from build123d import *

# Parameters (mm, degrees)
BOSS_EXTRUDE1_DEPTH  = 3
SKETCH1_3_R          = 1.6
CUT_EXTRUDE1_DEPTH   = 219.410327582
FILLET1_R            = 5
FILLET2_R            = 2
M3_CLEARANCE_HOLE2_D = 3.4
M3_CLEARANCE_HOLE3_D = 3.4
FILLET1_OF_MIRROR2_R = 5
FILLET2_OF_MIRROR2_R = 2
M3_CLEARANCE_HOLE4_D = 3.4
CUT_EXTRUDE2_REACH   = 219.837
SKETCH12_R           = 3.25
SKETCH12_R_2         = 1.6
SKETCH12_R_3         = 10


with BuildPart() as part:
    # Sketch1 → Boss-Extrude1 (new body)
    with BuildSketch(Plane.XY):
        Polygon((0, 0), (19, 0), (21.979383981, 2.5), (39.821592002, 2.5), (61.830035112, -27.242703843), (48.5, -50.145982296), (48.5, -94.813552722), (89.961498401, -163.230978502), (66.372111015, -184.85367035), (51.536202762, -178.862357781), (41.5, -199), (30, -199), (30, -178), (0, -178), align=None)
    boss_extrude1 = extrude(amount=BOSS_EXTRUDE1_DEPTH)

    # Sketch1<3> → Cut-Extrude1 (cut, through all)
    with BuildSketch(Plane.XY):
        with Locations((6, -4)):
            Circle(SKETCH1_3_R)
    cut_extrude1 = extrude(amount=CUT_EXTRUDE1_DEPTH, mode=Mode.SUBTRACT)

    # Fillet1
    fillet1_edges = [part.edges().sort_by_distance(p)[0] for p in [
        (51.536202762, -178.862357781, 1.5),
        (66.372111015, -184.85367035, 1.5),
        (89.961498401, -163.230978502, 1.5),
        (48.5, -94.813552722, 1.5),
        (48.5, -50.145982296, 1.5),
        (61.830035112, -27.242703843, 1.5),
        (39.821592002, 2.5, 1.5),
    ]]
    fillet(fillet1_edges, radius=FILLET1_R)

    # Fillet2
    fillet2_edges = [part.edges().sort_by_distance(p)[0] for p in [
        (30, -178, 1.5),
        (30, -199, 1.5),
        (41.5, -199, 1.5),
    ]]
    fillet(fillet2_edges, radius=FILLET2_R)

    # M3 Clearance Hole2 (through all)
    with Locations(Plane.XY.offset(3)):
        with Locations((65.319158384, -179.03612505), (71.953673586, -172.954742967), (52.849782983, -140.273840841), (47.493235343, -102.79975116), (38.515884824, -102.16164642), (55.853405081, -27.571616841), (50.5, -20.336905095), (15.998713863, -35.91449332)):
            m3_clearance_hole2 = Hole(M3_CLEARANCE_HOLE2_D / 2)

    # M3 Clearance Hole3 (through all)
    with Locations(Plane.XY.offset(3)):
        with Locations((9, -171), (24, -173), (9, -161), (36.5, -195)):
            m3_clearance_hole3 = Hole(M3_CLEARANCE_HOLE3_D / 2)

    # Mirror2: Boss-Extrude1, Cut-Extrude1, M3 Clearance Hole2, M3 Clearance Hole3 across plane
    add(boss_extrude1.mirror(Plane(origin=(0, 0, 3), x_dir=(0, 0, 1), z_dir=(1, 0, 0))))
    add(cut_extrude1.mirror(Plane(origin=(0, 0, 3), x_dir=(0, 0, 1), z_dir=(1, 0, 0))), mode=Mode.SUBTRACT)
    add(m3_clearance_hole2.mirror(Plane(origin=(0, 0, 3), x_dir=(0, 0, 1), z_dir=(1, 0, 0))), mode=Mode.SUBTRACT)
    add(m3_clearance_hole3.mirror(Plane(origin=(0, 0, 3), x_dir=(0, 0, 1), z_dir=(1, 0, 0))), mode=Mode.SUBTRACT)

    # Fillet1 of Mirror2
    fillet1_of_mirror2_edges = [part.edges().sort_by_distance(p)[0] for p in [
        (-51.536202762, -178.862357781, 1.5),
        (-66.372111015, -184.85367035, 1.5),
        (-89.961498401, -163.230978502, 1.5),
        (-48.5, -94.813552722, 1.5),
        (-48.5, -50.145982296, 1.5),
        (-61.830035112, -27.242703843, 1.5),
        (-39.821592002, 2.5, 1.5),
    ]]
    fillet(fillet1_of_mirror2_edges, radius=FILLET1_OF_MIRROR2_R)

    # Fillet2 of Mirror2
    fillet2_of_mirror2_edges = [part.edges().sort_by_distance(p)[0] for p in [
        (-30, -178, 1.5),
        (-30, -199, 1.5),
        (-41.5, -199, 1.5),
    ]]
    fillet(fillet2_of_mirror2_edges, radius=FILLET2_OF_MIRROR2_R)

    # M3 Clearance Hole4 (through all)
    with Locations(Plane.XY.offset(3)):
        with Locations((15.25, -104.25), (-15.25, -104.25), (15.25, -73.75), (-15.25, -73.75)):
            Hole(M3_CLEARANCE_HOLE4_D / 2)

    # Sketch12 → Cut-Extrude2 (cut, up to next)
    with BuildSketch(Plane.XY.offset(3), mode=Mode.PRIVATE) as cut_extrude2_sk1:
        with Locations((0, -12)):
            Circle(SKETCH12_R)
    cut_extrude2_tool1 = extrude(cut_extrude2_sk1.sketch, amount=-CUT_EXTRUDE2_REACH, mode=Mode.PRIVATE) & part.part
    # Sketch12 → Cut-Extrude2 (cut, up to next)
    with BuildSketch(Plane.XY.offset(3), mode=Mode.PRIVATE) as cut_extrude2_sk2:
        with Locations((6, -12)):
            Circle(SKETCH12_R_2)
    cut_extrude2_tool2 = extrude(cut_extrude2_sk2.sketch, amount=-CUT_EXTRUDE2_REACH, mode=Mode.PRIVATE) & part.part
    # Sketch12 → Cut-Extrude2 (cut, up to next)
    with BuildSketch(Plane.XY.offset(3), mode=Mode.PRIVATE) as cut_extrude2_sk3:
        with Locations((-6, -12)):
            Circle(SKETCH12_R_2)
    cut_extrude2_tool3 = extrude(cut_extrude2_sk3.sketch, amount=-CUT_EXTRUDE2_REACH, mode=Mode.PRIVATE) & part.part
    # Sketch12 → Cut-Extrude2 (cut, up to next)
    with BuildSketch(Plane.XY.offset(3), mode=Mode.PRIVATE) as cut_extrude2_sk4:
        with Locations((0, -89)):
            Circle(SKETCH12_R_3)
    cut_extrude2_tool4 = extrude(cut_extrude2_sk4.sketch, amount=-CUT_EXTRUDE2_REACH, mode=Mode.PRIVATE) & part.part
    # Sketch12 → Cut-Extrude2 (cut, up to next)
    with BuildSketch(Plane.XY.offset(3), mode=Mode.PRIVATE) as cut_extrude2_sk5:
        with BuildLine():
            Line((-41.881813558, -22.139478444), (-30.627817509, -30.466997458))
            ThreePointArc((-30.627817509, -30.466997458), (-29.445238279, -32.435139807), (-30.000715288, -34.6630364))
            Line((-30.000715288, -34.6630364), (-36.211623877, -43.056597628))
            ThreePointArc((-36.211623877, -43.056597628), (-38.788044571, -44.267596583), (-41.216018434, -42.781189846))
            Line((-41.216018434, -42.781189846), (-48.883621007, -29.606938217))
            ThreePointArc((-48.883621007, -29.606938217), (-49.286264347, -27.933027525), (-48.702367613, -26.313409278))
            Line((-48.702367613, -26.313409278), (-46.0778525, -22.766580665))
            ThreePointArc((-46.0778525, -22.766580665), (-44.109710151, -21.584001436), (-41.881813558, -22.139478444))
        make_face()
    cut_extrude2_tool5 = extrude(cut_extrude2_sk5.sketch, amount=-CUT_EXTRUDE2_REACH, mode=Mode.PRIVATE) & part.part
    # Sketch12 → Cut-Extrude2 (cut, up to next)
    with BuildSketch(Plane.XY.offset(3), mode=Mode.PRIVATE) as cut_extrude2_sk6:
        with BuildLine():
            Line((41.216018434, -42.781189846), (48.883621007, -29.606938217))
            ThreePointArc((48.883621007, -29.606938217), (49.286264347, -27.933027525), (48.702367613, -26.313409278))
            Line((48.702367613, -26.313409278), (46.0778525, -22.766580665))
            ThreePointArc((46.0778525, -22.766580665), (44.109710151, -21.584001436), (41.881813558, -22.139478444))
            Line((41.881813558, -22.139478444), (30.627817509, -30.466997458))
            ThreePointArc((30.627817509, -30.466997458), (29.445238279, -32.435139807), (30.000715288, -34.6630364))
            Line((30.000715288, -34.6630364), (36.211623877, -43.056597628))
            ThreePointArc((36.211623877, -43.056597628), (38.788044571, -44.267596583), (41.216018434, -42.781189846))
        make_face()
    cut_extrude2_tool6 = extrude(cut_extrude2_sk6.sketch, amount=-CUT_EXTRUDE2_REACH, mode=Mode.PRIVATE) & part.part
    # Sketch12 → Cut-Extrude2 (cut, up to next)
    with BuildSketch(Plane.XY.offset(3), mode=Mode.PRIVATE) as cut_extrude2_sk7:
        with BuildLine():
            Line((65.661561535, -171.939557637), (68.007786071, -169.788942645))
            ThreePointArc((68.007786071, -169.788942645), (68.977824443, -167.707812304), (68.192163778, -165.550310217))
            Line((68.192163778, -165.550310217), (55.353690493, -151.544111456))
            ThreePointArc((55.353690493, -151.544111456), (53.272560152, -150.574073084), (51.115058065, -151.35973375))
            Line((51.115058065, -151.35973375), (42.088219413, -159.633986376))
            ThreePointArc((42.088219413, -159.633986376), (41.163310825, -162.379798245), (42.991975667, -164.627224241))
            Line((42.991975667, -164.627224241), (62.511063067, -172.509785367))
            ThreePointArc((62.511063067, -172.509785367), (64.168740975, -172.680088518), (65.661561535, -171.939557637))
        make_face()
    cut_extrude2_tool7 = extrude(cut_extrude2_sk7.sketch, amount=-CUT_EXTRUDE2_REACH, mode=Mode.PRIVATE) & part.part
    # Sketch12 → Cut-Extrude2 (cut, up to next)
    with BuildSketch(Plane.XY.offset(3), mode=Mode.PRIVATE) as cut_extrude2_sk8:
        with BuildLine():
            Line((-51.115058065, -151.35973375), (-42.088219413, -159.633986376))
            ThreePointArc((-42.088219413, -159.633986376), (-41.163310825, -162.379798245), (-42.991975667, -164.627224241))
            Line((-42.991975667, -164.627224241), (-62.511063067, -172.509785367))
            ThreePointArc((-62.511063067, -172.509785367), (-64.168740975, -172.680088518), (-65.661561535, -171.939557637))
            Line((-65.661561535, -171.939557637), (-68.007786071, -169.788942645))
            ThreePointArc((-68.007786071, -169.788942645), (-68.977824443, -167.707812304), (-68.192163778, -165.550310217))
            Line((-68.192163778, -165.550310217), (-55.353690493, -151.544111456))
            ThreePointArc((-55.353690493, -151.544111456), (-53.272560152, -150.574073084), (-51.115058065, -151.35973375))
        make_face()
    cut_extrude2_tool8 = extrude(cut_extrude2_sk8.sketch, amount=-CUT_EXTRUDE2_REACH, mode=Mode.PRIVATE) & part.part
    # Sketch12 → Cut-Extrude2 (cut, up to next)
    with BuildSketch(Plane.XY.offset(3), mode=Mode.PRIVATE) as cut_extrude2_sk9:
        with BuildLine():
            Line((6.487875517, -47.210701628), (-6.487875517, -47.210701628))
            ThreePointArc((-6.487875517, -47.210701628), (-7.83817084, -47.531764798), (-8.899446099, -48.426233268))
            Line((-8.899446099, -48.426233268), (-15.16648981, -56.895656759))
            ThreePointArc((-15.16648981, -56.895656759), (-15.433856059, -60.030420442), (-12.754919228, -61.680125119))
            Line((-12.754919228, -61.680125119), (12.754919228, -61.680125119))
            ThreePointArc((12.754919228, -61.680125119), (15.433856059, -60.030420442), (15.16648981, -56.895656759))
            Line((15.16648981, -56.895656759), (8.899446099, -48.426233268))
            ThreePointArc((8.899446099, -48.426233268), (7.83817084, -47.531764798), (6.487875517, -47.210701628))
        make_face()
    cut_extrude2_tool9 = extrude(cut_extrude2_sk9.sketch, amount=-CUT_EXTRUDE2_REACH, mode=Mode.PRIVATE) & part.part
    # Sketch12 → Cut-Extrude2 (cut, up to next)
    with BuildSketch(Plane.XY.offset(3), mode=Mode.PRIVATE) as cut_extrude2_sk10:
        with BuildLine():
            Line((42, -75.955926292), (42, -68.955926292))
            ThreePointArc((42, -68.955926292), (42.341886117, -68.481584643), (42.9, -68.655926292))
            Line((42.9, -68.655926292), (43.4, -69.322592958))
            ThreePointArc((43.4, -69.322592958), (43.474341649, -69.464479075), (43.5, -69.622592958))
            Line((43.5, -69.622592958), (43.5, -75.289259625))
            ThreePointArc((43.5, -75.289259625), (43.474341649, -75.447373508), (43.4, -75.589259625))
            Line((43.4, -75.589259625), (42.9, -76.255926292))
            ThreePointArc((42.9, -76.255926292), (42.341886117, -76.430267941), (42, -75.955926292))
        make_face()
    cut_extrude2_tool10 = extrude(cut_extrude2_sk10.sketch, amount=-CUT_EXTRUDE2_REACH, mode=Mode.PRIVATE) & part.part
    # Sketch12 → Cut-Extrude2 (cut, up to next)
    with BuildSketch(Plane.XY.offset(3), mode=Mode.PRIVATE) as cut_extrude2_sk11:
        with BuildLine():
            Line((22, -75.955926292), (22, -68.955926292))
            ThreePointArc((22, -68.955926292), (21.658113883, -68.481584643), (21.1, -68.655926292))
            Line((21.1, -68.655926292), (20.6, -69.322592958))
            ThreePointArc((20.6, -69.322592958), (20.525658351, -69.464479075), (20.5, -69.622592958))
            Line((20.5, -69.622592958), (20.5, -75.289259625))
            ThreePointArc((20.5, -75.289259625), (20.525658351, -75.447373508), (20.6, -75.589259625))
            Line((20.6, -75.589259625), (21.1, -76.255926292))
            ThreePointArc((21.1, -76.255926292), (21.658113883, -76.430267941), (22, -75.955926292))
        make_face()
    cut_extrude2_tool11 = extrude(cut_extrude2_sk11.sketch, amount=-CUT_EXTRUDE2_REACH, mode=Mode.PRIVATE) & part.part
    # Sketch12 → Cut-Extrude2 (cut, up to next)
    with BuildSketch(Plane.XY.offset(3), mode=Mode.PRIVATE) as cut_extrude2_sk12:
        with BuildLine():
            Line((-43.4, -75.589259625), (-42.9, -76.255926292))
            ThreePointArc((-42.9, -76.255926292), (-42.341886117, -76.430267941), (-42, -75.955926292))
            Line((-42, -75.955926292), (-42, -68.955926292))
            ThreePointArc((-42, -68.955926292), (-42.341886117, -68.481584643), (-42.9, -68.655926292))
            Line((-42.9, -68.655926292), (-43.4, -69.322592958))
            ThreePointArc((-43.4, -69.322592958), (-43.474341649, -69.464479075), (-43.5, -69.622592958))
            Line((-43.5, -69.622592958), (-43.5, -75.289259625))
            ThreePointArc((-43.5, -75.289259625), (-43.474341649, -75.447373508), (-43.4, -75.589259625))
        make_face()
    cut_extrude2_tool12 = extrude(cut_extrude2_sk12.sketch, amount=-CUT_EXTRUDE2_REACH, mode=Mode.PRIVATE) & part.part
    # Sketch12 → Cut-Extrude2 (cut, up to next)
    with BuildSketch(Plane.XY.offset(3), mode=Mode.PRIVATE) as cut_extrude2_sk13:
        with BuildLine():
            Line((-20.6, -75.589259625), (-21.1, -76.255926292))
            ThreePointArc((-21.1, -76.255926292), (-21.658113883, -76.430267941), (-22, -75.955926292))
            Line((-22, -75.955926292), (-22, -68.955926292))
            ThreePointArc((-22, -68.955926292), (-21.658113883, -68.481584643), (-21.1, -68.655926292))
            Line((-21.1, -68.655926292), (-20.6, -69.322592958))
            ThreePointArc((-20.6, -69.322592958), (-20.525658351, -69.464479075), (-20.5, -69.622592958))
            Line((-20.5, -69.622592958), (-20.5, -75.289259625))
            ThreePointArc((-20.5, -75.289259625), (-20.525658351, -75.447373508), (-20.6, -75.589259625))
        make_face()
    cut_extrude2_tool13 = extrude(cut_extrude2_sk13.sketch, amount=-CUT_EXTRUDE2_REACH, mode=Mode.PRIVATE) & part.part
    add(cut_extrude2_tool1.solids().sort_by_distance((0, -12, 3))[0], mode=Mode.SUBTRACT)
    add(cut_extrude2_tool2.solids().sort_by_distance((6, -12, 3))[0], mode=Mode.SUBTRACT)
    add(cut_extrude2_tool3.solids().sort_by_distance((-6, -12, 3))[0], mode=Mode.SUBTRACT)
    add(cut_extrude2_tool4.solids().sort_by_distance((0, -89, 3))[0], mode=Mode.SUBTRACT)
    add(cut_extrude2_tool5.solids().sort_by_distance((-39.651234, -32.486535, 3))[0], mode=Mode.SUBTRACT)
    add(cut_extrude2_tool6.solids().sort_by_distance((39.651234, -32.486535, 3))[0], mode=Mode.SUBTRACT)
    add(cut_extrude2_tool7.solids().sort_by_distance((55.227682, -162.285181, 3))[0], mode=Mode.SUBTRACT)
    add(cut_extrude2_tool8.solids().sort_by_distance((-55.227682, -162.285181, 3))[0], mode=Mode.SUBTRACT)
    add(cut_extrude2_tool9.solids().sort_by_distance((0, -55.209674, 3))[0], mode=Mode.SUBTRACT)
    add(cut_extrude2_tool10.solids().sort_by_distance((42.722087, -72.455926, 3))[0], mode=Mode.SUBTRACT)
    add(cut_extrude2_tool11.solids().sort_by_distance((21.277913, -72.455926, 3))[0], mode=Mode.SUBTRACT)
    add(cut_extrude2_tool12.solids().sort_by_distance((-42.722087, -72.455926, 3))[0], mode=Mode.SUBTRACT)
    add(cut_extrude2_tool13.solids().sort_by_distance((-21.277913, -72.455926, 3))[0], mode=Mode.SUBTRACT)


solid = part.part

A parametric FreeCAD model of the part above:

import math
import FreeCAD as App
import Part
import Sketcher
from FreeCAD import Vector
Q = App.Units.Quantity


def edges_at(feature, points):
    """Names of the edges that pass closest to the given points."""
    edges = feature.Shape.Edges
    near = lambda p: min(range(len(edges)), key=lambda i: edges[i].distToShape(Part.Vertex(*p))[0])
    return sorted({f"Edge{near(p) + 1}" for p in points})


def add_polygon(sketch, points):
    """Adds a closed chain of lines whose ends are joined by coincident constraints."""
    first, n = sketch.GeometryCount, len(points)
    for a, b in zip(points, points[1:] + points[:1]):
        sketch.addGeometry(Part.LineSegment(App.Vector(*a, 0), App.Vector(*b, 0)), False)
    for i in range(n):
        sketch.addConstraint(Sketcher.Constraint("Coincident", first + i, 2, first + (i + 1) % n, 1))

doc = App.newDocument("Part")
body = doc.addObject("PartDesign::Body", "Body")

sketch1 = doc.addObject("Sketcher::SketchObject", "Sketch")
body.addObject(sketch1)
sketch1.AttachmentSupport = (doc.XY_Plane, [""])
sketch1.MapMode = "FlatFace"
add_polygon(sketch1, [(19, 0), (0, 0), (0, -178), (30, -178), (30, -199), (41.5, -199), (51.5, -178.9), (66.4, -184.9), (90, -163.2), (48.5, -94.8), (48.5, -50.1), (61.8, -27.2), (39.8, 2.5), (22, 2.5)])
sketch1.addConstraint(Sketcher.Constraint("Horizontal", 0))
sketch1.addConstraint(Sketcher.Constraint("Vertical", 1))
sketch1.addConstraint(Sketcher.Constraint("Horizontal", 2))
sketch1.addConstraint(Sketcher.Constraint("Vertical", 3))
sketch1.addConstraint(Sketcher.Constraint("Horizontal", 4))
sketch1.addConstraint(Sketcher.Constraint("Vertical", 9))
sketch1.addConstraint(Sketcher.Constraint("Horizontal", 12))
sketch1.addConstraint(Sketcher.Constraint("Coincident", 0, 2, -1, 1))
sketch1.addConstraint(Sketcher.Constraint("DistanceX", 0, 2, 0, 1, 19.0))
sketch1.addConstraint(Sketcher.Constraint("DistanceX", 2, 1, 2, 2, 30.0))
sketch1.addConstraint(Sketcher.Constraint("DistanceY", 1, 2, 1, 1, 178.0))
sketch1.addConstraint(Sketcher.Constraint("DistanceY", 3, 2, 3, 1, 21.0))
sketch1.addConstraint(Sketcher.Constraint("Angle", 13, Q("-140 deg")))
sketch1.addConstraint(Sketcher.Constraint("Distance", 6, 16.0))
sketch1.addConstraint(Sketcher.Constraint("Distance", 7, 32.0))
sketch1.addConstraint(Sketcher.Constraint("Distance", 8, 80.0))
sketch1.addConstraint(Sketcher.Constraint("Distance", 11, 37.0))
sketch1.addConstraint(Sketcher.Constraint("DistanceX", 4, 1, 4, 2, 11.5))
sketch1.addConstraint(Sketcher.Constraint("Angle", 10, Q("59.799984 deg")))
sketch1.addConstraint(Sketcher.Constraint("Angle", 11, Q("126.5 deg")))
sketch1.addConstraint(Sketcher.Constraint("Distance", 5, 22.5))
sketch1.addConstraint(Sketcher.Constraint("Distance", 10, 26.5))
sketch1.addConstraint(Sketcher.Constraint("DistanceX", -1, 1, 8, 2, 48.5))
sketch1.addConstraint(Sketcher.Constraint("DistanceY", -1, 1, 11, 2, 2.5))
sketch1.addConstraint(Sketcher.Constraint("DistanceY", 9, 1, 9, 2, 44.66757))
sketch1.addConstraint(Sketcher.Constraint("DistanceX", -1, 1, 7, 2, 89.961498))
sketch1.addConstraint(Sketcher.Constraint("DistanceX", -1, 1, 6, 2, 66.372111))
pad1 = doc.addObject("PartDesign::Pad", "Pad")
body.addObject(pad1)
pad1.Profile = sketch1
pad1.Length = 3

sketch2 = doc.addObject("Sketcher::SketchObject", "Sketch001")
body.addObject(sketch2)
sketch2.AttachmentSupport = (doc.XY_Plane, [""])
sketch2.MapMode = "FlatFace"
sketch2.addGeometry(Part.Circle(Vector(6, -4, 0), Vector(0, 0, 1), 1.6), False)
sketch2.addConstraint(Sketcher.Constraint("Diameter", 0, 3.2))
sketch2.addConstraint(Sketcher.Constraint("DistanceX", -1, 1, 0, 3, 6.0))
sketch2.addConstraint(Sketcher.Constraint("DistanceY", 0, 3, -1, 1, 4.0))
pocket1 = doc.addObject("PartDesign::Pocket", "Pocket")
body.addObject(pocket1)
pocket1.Profile = sketch2
pocket1.Type = "ThroughAll"
pocket1.Reversed = True
doc.recompute()

fillet = doc.addObject("PartDesign::Fillet", "Fillet")
body.addObject(fillet)
fillet.Base = (pocket1, edges_at(pocket1, [
    (51.536, -178.862, 1.5),
    (66.372, -184.854, 1.5),
    (89.961, -163.231, 1.5),
    (48.5, -94.814, 1.5),
    (48.5, -50.146, 1.5),
    (61.83, -27.243, 1.5),
    (39.822, 2.5, 1.5),
]))
fillet.Radius = 5
doc.recompute()

fillet2 = doc.addObject("PartDesign::Fillet", "Fillet001")
body.addObject(fillet2)
fillet2.Base = (fillet, edges_at(fillet, [(30, -178, 1.5), (30, -199, 1.5), (41.5, -199, 1.5)]))
fillet2.Radius = 2

sketch3 = doc.addObject("Sketcher::SketchObject", "Sketch002")
body.addObject(sketch3)
sketch3.AttachmentSupport = (doc.XY_Plane, [""])
sketch3.MapMode = "FlatFace"
sketch3.AttachmentOffset = App.Placement(Vector(0, 0, 3), App.Rotation())
sketch3.addGeometry(Part.Circle(Vector(65.3, -179, 0), Vector(0, 0, 1), 1.7), False)
sketch3.addGeometry(Part.Circle(Vector(72, -173, 0), Vector(0, 0, 1), 1.7), False)
sketch3.addGeometry(Part.Circle(Vector(52.8, -140.3, 0), Vector(0, 0, 1), 1.7), False)
sketch3.addGeometry(Part.Circle(Vector(47.5, -102.8, 0), Vector(0, 0, 1), 1.7), False)
sketch3.addGeometry(Part.Circle(Vector(38.5, -102.2, 0), Vector(0, 0, 1), 1.7), False)
sketch3.addGeometry(Part.Circle(Vector(55.9, -27.6, 0), Vector(0, 0, 1), 1.7), False)
sketch3.addGeometry(Part.Circle(Vector(50.5, -20.3, 0), Vector(0, 0, 1), 1.7), False)
sketch3.addGeometry(Part.Circle(Vector(16, -35.9, 0), Vector(0, 0, 1), 1.7), False)
sketch3.addConstraint(Sketcher.Constraint("Equal", 0, 1))
sketch3.addConstraint(Sketcher.Constraint("Equal", 1, 2))
sketch3.addConstraint(Sketcher.Constraint("Equal", 2, 3))
sketch3.addConstraint(Sketcher.Constraint("Equal", 3, 4))
sketch3.addConstraint(Sketcher.Constraint("Equal", 4, 5))
sketch3.addConstraint(Sketcher.Constraint("Equal", 5, 6))
sketch3.addConstraint(Sketcher.Constraint("Equal", 6, 7))
sketch3.addConstraint(Sketcher.Constraint("Diameter", 0, 3.4))
sketch3.addConstraint(Sketcher.Constraint("DistanceX", -1, 1, 6, 3, 50.5))
sketch3.addConstraint(Sketcher.Constraint("DistanceX", 4, 3, 2, 3, 14.333898))
sketch3.addConstraint(Sketcher.Constraint("DistanceX", -1, 1, 0, 3, 65.319158))
sketch3.addConstraint(Sketcher.Constraint("DistanceY", 2, 3, -1, 1, 140.273841))
sketch3.addConstraint(Sketcher.Constraint("DistanceY", 3, 3, -1, 1, 102.799751))
sketch3.addConstraint(Sketcher.Constraint("DistanceX", 2, 3, 1, 3, 19.103891))
sketch3.addConstraint(Sketcher.Constraint("DistanceX", 3, 3, 1, 3, 24.460438))
sketch3.addConstraint(Sketcher.Constraint("DistanceY", 1, 3, 3, 3, 70.154992))
sketch3.addConstraint(Sketcher.Constraint("DistanceY", 0, 3, 4, 3, 76.874479))
sketch3.addConstraint(Sketcher.Constraint("DistanceX", 3, 3, 5, 3, 8.36017))
sketch3.addConstraint(Sketcher.Constraint("DistanceY", 4, 3, 5, 3, 74.59003))
sketch3.addConstraint(Sketcher.Constraint("DistanceY", 5, 3, 6, 3, 7.234712))
sketch3.addConstraint(Sketcher.Constraint("DistanceY", 7, 3, 6, 3, 15.577588))
sketch3.addConstraint(Sketcher.Constraint("DistanceX", 7, 3, 5, 3, 39.854691))
sketch3.addConstraint(Sketcher.Constraint("DistanceY", 0, 3, -1, 1, 179.036125))
sketch3.addConstraint(Sketcher.Constraint("DistanceX", -1, 1, 1, 3, 71.953674))
doc.recompute()
hole = doc.addObject("PartDesign::Hole", "Hole")
body.addObject(hole)
hole.Profile = sketch3
hole.ThreadType = "None"
hole.Diameter = 3.4
hole.DepthType = "ThroughAll"

sketch4 = doc.addObject("Sketcher::SketchObject", "Sketch003")
body.addObject(sketch4)
sketch4.AttachmentSupport = (doc.XY_Plane, [""])
sketch4.MapMode = "FlatFace"
sketch4.AttachmentOffset = App.Placement(Vector(0, 0, 3), App.Rotation())
sketch4.addGeometry(Part.Circle(Vector(9, -171, 0), Vector(0, 0, 1), 1.7), False)
sketch4.addGeometry(Part.Circle(Vector(24, -173, 0), Vector(0, 0, 1), 1.7), False)
sketch4.addGeometry(Part.Circle(Vector(9, -161, 0), Vector(0, 0, 1), 1.7), False)
sketch4.addGeometry(Part.Circle(Vector(36.5, -195, 0), Vector(0, 0, 1), 1.7), False)
sketch4.addConstraint(Sketcher.Constraint("Equal", 0, 1))
sketch4.addConstraint(Sketcher.Constraint("Equal", 1, 2))
sketch4.addConstraint(Sketcher.Constraint("Equal", 2, 3))
sketch4.addConstraint(Sketcher.Constraint("Vertical", 0, 3, 2, 3))
sketch4.addConstraint(Sketcher.Constraint("Diameter", 0, 3.4))
sketch4.addConstraint(Sketcher.Constraint("DistanceX", -1, 1, 0, 3, 9.0))
sketch4.addConstraint(Sketcher.Constraint("DistanceY", 0, 3, -1, 1, 171.0))
sketch4.addConstraint(Sketcher.Constraint("DistanceX", -1, 1, 1, 3, 24.0))
sketch4.addConstraint(Sketcher.Constraint("DistanceY", 1, 3, -1, 1, 173.0))
sketch4.addConstraint(Sketcher.Constraint("DistanceY", 2, 3, -1, 1, 161.0))
sketch4.addConstraint(Sketcher.Constraint("DistanceY", 3, 3, -1, 1, 195.0))
sketch4.addConstraint(Sketcher.Constraint("DistanceX", -1, 1, 3, 3, 36.5))
doc.recompute()
hole2 = doc.addObject("PartDesign::Hole", "Hole001")
body.addObject(hole2)
hole2.Profile = sketch4
hole2.ThreadType = "None"
hole2.Diameter = 3.4
hole2.DepthType = "ThroughAll"
doc.recompute()

mirrored = doc.addObject("PartDesign::Mirrored", "Mirrored")
body.addObject(mirrored)
mirrored.Originals = [pad1, pocket1, hole, hole2]
mirrored.MirrorPlane = (doc.YZ_Plane, [""])
body.Tip = mirrored
doc.recompute()

fillet3 = doc.addObject("PartDesign::Fillet", "Fillet002")
body.addObject(fillet3)
fillet3.Base = (mirrored, edges_at(mirrored, [
    (-51.536, -178.862, 1.5),
    (-66.372, -184.854, 1.5),
    (-89.961, -163.231, 1.5),
    (-48.5, -94.814, 1.5),
    (-48.5, -50.146, 1.5),
    (-61.83, -27.243, 1.5),
    (-39.822, 2.5, 1.5),
]))
fillet3.Radius = 5
doc.recompute()

fillet4 = doc.addObject("PartDesign::Fillet", "Fillet003")
body.addObject(fillet4)
fillet4.Base = (fillet3, edges_at(fillet3, [(-30, -178, 1.5), (-30, -199, 1.5), (-41.5, -199, 1.5)]))
fillet4.Radius = 2

sketch5 = doc.addObject("Sketcher::SketchObject", "Sketch004")
body.addObject(sketch5)
sketch5.AttachmentSupport = (doc.XY_Plane, [""])
sketch5.MapMode = "FlatFace"
sketch5.AttachmentOffset = App.Placement(Vector(0, 0, 3), App.Rotation())
sketch5.addGeometry(Part.Circle(Vector(15.2, -104.2, 0), Vector(0, 0, 1), 1.7), False)
sketch5.addGeometry(Part.Circle(Vector(-15.2, -104.2, 0), Vector(0, 0, 1), 1.7), False)
sketch5.addGeometry(Part.Circle(Vector(15.2, -73.8, 0), Vector(0, 0, 1), 1.7), False)
sketch5.addGeometry(Part.Circle(Vector(-15.2, -73.8, 0), Vector(0, 0, 1), 1.7), False)
sketch5.addConstraint(Sketcher.Constraint("Equal", 0, 1))
sketch5.addConstraint(Sketcher.Constraint("Equal", 1, 2))
sketch5.addConstraint(Sketcher.Constraint("Equal", 2, 3))
sketch5.addConstraint(Sketcher.Constraint("Symmetric", 0, 3, 1, 3, -2))
sketch5.addConstraint(Sketcher.Constraint("Symmetric", 2, 3, 3, 3, -2))
sketch5.addConstraint(Sketcher.Constraint("Vertical", 0, 3, 2, 3))
sketch5.addConstraint(Sketcher.Constraint("Diameter", 0, 3.4))
sketch5.addConstraint(Sketcher.Constraint("DistanceX", 1, 3, 0, 3, 30.5))
sketch5.addConstraint(Sketcher.Constraint("DistanceY", 0, 3, 2, 3, 30.5))
sketch5.addConstraint(Sketcher.Constraint("DistanceY", 0, 3, -1, 1, 104.25))
doc.recompute()
hole3 = doc.addObject("PartDesign::Hole", "Hole002")
body.addObject(hole3)
hole3.Profile = sketch5
hole3.ThreadType = "None"
hole3.Diameter = 3.4
hole3.DepthType = "ThroughAll"

sketch6 = doc.addObject("Sketcher::SketchObject", "Sketch005")
body.addObject(sketch6)
sketch6.AttachmentSupport = (doc.XY_Plane, [""])
sketch6.MapMode = "FlatFace"
sketch6.AttachmentOffset = App.Placement(Vector(0, 0, 3), App.Rotation())
sketch6.addGeometry(Part.Circle(Vector(0, -12, 0), Vector(0, 0, 1), 3.2), False)
sketch6.addConstraint(Sketcher.Constraint("PointOnObject", 0, 3, -2))
sketch6.addConstraint(Sketcher.Constraint("Diameter", 0, 6.5))
sketch6.addConstraint(Sketcher.Constraint("DistanceY", 0, 3, -1, 1, 12.0))
pocket2 = doc.addObject("PartDesign::Pocket", "Pocket001")
body.addObject(pocket2)
pocket2.Profile = sketch6
pocket2.Type = "UpToFirst"

sketch7 = doc.addObject("Sketcher::SketchObject", "Sketch006")
body.addObject(sketch7)
sketch7.AttachmentSupport = (doc.XY_Plane, [""])
sketch7.MapMode = "FlatFace"
sketch7.AttachmentOffset = App.Placement(Vector(0, 0, 3), App.Rotation())
sketch7.addGeometry(Part.Circle(Vector(6, -12, 0), Vector(0, 0, 1), 1.6), False)
sketch7.addConstraint(Sketcher.Constraint("Diameter", 0, 3.2))
sketch7.addConstraint(Sketcher.Constraint("DistanceX", -1, 1, 0, 3, 6.0))
sketch7.addConstraint(Sketcher.Constraint("DistanceY", 0, 3, -1, 1, 12.0))
pocket3 = doc.addObject("PartDesign::Pocket", "Pocket002")
body.addObject(pocket3)
pocket3.Profile = sketch7
pocket3.Type = "UpToFirst"

sketch8 = doc.addObject("Sketcher::SketchObject", "Sketch007")
body.addObject(sketch8)
sketch8.AttachmentSupport = (doc.XY_Plane, [""])
sketch8.MapMode = "FlatFace"
sketch8.AttachmentOffset = App.Placement(Vector(0, 0, 3), App.Rotation())
sketch8.addGeometry(Part.Circle(Vector(-6, -12, 0), Vector(0, 0, 1), 1.6), False)
sketch8.addConstraint(Sketcher.Constraint("Diameter", 0, 3.2))
sketch8.addConstraint(Sketcher.Constraint("DistanceX", 0, 3, -1, 1, 6.0))
sketch8.addConstraint(Sketcher.Constraint("DistanceY", 0, 3, -1, 1, 12.0))
pocket4 = doc.addObject("PartDesign::Pocket", "Pocket003")
body.addObject(pocket4)
pocket4.Profile = sketch8
pocket4.Type = "UpToFirst"

sketch9 = doc.addObject("Sketcher::SketchObject", "Sketch008")
body.addObject(sketch9)
sketch9.AttachmentSupport = (doc.XY_Plane, [""])
sketch9.MapMode = "FlatFace"
sketch9.AttachmentOffset = App.Placement(Vector(0, 0, 3), App.Rotation())
sketch9.addGeometry(Part.Circle(Vector(0, -89, 0), Vector(0, 0, 1), 10), False)
sketch9.addConstraint(Sketcher.Constraint("PointOnObject", 0, 3, -2))
sketch9.addConstraint(Sketcher.Constraint("Diameter", 0, 20.0))
sketch9.addConstraint(Sketcher.Constraint("DistanceY", 0, 3, -1, 1, 89.0))
pocket5 = doc.addObject("PartDesign::Pocket", "Pocket004")
body.addObject(pocket5)
pocket5.Profile = sketch9
pocket5.Type = "UpToFirst"

sketch10 = doc.addObject("Sketcher::SketchObject", "Sketch009")
body.addObject(sketch10)
sketch10.AttachmentSupport = (doc.XY_Plane, [""])
sketch10.MapMode = "FlatFace"
sketch10.AttachmentOffset = App.Placement(Vector(0, 0, 3), App.Rotation())
sketch10.addGeometry(Part.LineSegment(Vector(-30.6, -30.5, 0), Vector(-41.9, -22.1, 0)), False)
sketch10.addGeometry(Part.ArcOfCircle(Part.Circle(Vector(-43.7, -24.6, 0), Vector(0, 0, 1), 3), math.radians(54), math.radians(143)), False)
sketch10.addGeometry(Part.LineSegment(Vector(-46.1, -22.8, 0), Vector(-48.7, -26.3, 0)), False)
sketch10.addGeometry(Part.ArcOfCircle(Part.Circle(Vector(-46.3, -28.1, 0), Vector(0, 0, 1), 3), math.radians(144), math.radians(210)), False)
sketch10.addGeometry(Part.LineSegment(Vector(-48.9, -29.6, 0), Vector(-41.2, -42.8, 0)), False)
sketch10.addGeometry(Part.ArcOfCircle(Part.Circle(Vector(-38.6, -41.3, 0), Vector(0, 0, 1), 3), math.radians(-150), math.radians(-37)), False)
sketch10.addGeometry(Part.LineSegment(Vector(-36.2, -43.1, 0), Vector(-30, -34.7, 0)), False)
sketch10.addGeometry(Part.ArcOfCircle(Part.Circle(Vector(-32.4, -32.9, 0), Vector(0, 0, 1), 3), math.radians(-37), math.radians(54)), False)
sketch10.addConstraint(Sketcher.Constraint("Tangent", 0, 2, 1, 1))
sketch10.addConstraint(Sketcher.Constraint("Tangent", 1, 2, 2, 1))
sketch10.addConstraint(Sketcher.Constraint("Tangent", 2, 2, 3, 1))
sketch10.addConstraint(Sketcher.Constraint("Tangent", 3, 2, 4, 1))
sketch10.addConstraint(Sketcher.Constraint("Tangent", 4, 2, 5, 1))
sketch10.addConstraint(Sketcher.Constraint("Tangent", 5, 2, 6, 1))
sketch10.addConstraint(Sketcher.Constraint("Tangent", 6, 2, 7, 1))
sketch10.addConstraint(Sketcher.Constraint("Tangent", 7, 2, 0, 1))
sketch10.addConstraint(Sketcher.Constraint("Equal", 1, 3))
sketch10.addConstraint(Sketcher.Constraint("Equal", 3, 5))
sketch10.addConstraint(Sketcher.Constraint("Equal", 5, 7))
sketch10.addConstraint(Sketcher.Constraint("Perpendicular", 0, 2))
sketch10.addConstraint(Sketcher.Constraint("Parallel", 2, 6))
sketch10.addConstraint(Sketcher.Constraint("Radius", 1, 3.0))
sketch10.addConstraint(Sketcher.Constraint("Distance", 0, 14.0))
sketch10.addConstraint(Sketcher.Constraint("Angle", 0, Q("143.5 deg")))
sketch10.addConstraint(Sketcher.Constraint("Angle", 4, Q("-59.799984 deg")))
sketch10.addConstraint(Sketcher.Constraint("DistanceY", 3, 3, 0, 2, 5.958399))
sketch10.addConstraint(Sketcher.Constraint("DistanceX", 1, 3, -1, 1, 43.666282))
sketch10.addConstraint(Sketcher.Constraint("DistanceY", 1, 3, -1, 1, 24.551049))
pocket6 = doc.addObject("PartDesign::Pocket", "Pocket005")
body.addObject(pocket6)
pocket6.Profile = sketch10
pocket6.Type = "UpToFirst"

sketch11 = doc.addObject("Sketcher::SketchObject", "Sketch010")
body.addObject(sketch11)
sketch11.AttachmentSupport = (doc.XY_Plane, [""])
sketch11.MapMode = "FlatFace"
sketch11.AttachmentOffset = App.Placement(Vector(0, 0, 3), App.Rotation())
sketch11.addGeometry(Part.LineSegment(Vector(41.2, -42.8, 0), Vector(48.9, -29.6, 0)), False)
sketch11.addGeometry(Part.ArcOfCircle(Part.Circle(Vector(46.3, -28.1, 0), Vector(0, 0, 1), 3), math.radians(-30), math.radians(36)), False)
sketch11.addGeometry(Part.LineSegment(Vector(48.7, -26.3, 0), Vector(46.1, -22.8, 0)), False)
sketch11.addGeometry(Part.ArcOfCircle(Part.Circle(Vector(43.7, -24.6, 0), Vector(0, 0, 1), 3), math.radians(37), math.radians(126)), False)
sketch11.addGeometry(Part.LineSegment(Vector(41.9, -22.1, 0), Vector(30.6, -30.5, 0)), False)
sketch11.addGeometry(Part.ArcOfCircle(Part.Circle(Vector(32.4, -32.9, 0), Vector(0, 0, 1), 3), math.radians(126), math.radians(217)), False)
sketch11.addGeometry(Part.LineSegment(Vector(30, -34.7, 0), Vector(36.2, -43.1, 0)), False)
sketch11.addGeometry(Part.ArcOfCircle(Part.Circle(Vector(38.6, -41.3, 0), Vector(0, 0, 1), 3), math.radians(-143), math.radians(-30)), False)
sketch11.addConstraint(Sketcher.Constraint("Tangent", 0, 2, 1, 1))
sketch11.addConstraint(Sketcher.Constraint("Tangent", 1, 2, 2, 1))
sketch11.addConstraint(Sketcher.Constraint("Tangent", 2, 2, 3, 1))
sketch11.addConstraint(Sketcher.Constraint("Tangent", 3, 2, 4, 1))
sketch11.addConstraint(Sketcher.Constraint("Tangent", 4, 2, 5, 1))
sketch11.addConstraint(Sketcher.Constraint("Tangent", 5, 2, 6, 1))
sketch11.addConstraint(Sketcher.Constraint("Tangent", 6, 2, 7, 1))
sketch11.addConstraint(Sketcher.Constraint("Tangent", 7, 2, 0, 1))
sketch11.addConstraint(Sketcher.Constraint("Equal", 1, 3))
sketch11.addConstraint(Sketcher.Constraint("Equal", 3, 5))
sketch11.addConstraint(Sketcher.Constraint("Equal", 5, 7))
sketch11.addConstraint(Sketcher.Constraint("Perpendicular", 2, 4))
sketch11.addConstraint(Sketcher.Constraint("Perpendicular", 4, 6))
sketch11.addConstraint(Sketcher.Constraint("Radius", 1, 3.0))
sketch11.addConstraint(Sketcher.Constraint("Distance", 4, 14.0))
sketch11.addConstraint(Sketcher.Constraint("Angle", 0, Q("59.799984 deg")))
sketch11.addConstraint(Sketcher.Constraint("Angle", 2, Q("126.5 deg")))
sketch11.addConstraint(Sketcher.Constraint("DistanceY", 1, 3, 3, 2, 5.958399))
sketch11.addConstraint(Sketcher.Constraint("DistanceX", -1, 1, 3, 3, 43.666282))
sketch11.addConstraint(Sketcher.Constraint("DistanceY", 3, 3, -1, 1, 24.551049))
pocket7 = doc.addObject("PartDesign::Pocket", "Pocket006")
body.addObject(pocket7)
pocket7.Profile = sketch11
pocket7.Type = "UpToFirst"

sketch12 = doc.addObject("Sketcher::SketchObject", "Sketch011")
body.addObject(sketch12)
sketch12.AttachmentSupport = (doc.XY_Plane, [""])
sketch12.MapMode = "FlatFace"
sketch12.AttachmentOffset = App.Placement(Vector(0, 0, 3), App.Rotation())
sketch12.addGeometry(Part.LineSegment(Vector(65.7, -171.9, 0), Vector(68, -169.8, 0)), False)
sketch12.addGeometry(Part.ArcOfCircle(Part.Circle(Vector(66, -167.6, 0), Vector(0, 0, 1), 3), math.radians(-47), math.radians(43)), False)
sketch12.addGeometry(Part.LineSegment(Vector(68.2, -165.6, 0), Vector(55.4, -151.5, 0)), False)
sketch12.addGeometry(Part.ArcOfCircle(Part.Circle(Vector(53.1, -153.6, 0), Vector(0, 0, 1), 3), math.radians(43), math.radians(133)), False)
sketch12.addGeometry(Part.LineSegment(Vector(51.1, -151.4, 0), Vector(42.1, -159.6, 0)), False)
sketch12.addGeometry(Part.ArcOfCircle(Part.Circle(Vector(44.1, -161.8, 0), Vector(0, 0, 1), 3), math.radians(133), math.radians(248)), False)
sketch12.addGeometry(Part.LineSegment(Vector(43, -164.6, 0), Vector(62.5, -172.5, 0)), False)
sketch12.addGeometry(Part.ArcOfCircle(Part.Circle(Vector(63.6, -169.7, 0), Vector(0, 0, 1), 3), math.radians(-112), math.radians(-47)), False)
sketch12.addConstraint(Sketcher.Constraint("Tangent", 0, 2, 1, 1))
sketch12.addConstraint(Sketcher.Constraint("Tangent", 1, 2, 2, 1))
sketch12.addConstraint(Sketcher.Constraint("Tangent", 2, 2, 3, 1))
sketch12.addConstraint(Sketcher.Constraint("Tangent", 3, 2, 4, 1))
sketch12.addConstraint(Sketcher.Constraint("Tangent", 4, 2, 5, 1))
sketch12.addConstraint(Sketcher.Constraint("Tangent", 5, 2, 6, 1))
sketch12.addConstraint(Sketcher.Constraint("Tangent", 6, 2, 7, 1))
sketch12.addConstraint(Sketcher.Constraint("Tangent", 7, 2, 0, 1))
sketch12.addConstraint(Sketcher.Constraint("Equal", 1, 3))
sketch12.addConstraint(Sketcher.Constraint("Equal", 3, 5))
sketch12.addConstraint(Sketcher.Constraint("Equal", 5, 7))
sketch12.addConstraint(Sketcher.Constraint("Perpendicular", 0, 2))
sketch12.addConstraint(Sketcher.Constraint("Perpendicular", 2, 4))
sketch12.addConstraint(Sketcher.Constraint("Radius", 1, 3.0))
sketch12.addConstraint(Sketcher.Constraint("Distance", 2, 19.0))
sketch12.addConstraint(Sketcher.Constraint("DistanceY", 1, 3, 3, 3, 14.006199))
sketch12.addConstraint(Sketcher.Constraint("DistanceX", 6, 2, 1, 2, 5.681101))
sketch12.addConstraint(Sketcher.Constraint("DistanceX", 6, 2, 7, 2, 3.150498))
sketch12.addConstraint(Sketcher.Constraint("DistanceX", -1, 1, 1, 3, 65.980659))
sketch12.addConstraint(Sketcher.Constraint("DistanceY", 3, 3, -1, 1, 153.571239))
pocket8 = doc.addObject("PartDesign::Pocket", "Pocket007")
body.addObject(pocket8)
pocket8.Profile = sketch12
pocket8.Type = "UpToFirst"

sketch13 = doc.addObject("Sketcher::SketchObject", "Sketch012")
body.addObject(sketch13)
sketch13.AttachmentSupport = (doc.XY_Plane, [""])
sketch13.MapMode = "FlatFace"
sketch13.AttachmentOffset = App.Placement(Vector(0, 0, 3), App.Rotation())
sketch13.addGeometry(Part.LineSegment(Vector(-42.1, -159.6, 0), Vector(-51.1, -151.4, 0)), False)
sketch13.addGeometry(Part.ArcOfCircle(Part.Circle(Vector(-53.1, -153.6, 0), Vector(0, 0, 1), 3), math.radians(47), math.radians(137)), False)
sketch13.addGeometry(Part.LineSegment(Vector(-55.4, -151.5, 0), Vector(-68.2, -165.6, 0)), False)
sketch13.addGeometry(Part.ArcOfCircle(Part.Circle(Vector(-66, -167.6, 0), Vector(0, 0, 1), 3), math.radians(137), math.radians(227)), False)
sketch13.addGeometry(Part.LineSegment(Vector(-68, -169.8, 0), Vector(-65.7, -171.9, 0)), False)
sketch13.addGeometry(Part.ArcOfCircle(Part.Circle(Vector(-63.6, -169.7, 0), Vector(0, 0, 1), 3), math.radians(-133), math.radians(-68)), False)
sketch13.addGeometry(Part.LineSegment(Vector(-62.5, -172.5, 0), Vector(-43, -164.6, 0)), False)
sketch13.addGeometry(Part.ArcOfCircle(Part.Circle(Vector(-44.1, -161.8, 0), Vector(0, 0, 1), 3), math.radians(-68), math.radians(47)), False)
sketch13.addConstraint(Sketcher.Constraint("Tangent", 0, 2, 1, 1))
sketch13.addConstraint(Sketcher.Constraint("Tangent", 1, 2, 2, 1))
sketch13.addConstraint(Sketcher.Constraint("Tangent", 2, 2, 3, 1))
sketch13.addConstraint(Sketcher.Constraint("Tangent", 3, 2, 4, 1))
sketch13.addConstraint(Sketcher.Constraint("Tangent", 4, 2, 5, 1))
sketch13.addConstraint(Sketcher.Constraint("Tangent", 5, 2, 6, 1))
sketch13.addConstraint(Sketcher.Constraint("Tangent", 6, 2, 7, 1))
sketch13.addConstraint(Sketcher.Constraint("Tangent", 7, 2, 0, 1))
sketch13.addConstraint(Sketcher.Constraint("Equal", 1, 3))
sketch13.addConstraint(Sketcher.Constraint("Equal", 3, 5))
sketch13.addConstraint(Sketcher.Constraint("Equal", 5, 7))
sketch13.addConstraint(Sketcher.Constraint("Perpendicular", 0, 2))
sketch13.addConstraint(Sketcher.Constraint("Perpendicular", 2, 4))
sketch13.addConstraint(Sketcher.Constraint("Radius", 1, 3.0))
sketch13.addConstraint(Sketcher.Constraint("Distance", 2, 19.0))
sketch13.addConstraint(Sketcher.Constraint("DistanceY", 3, 3, 1, 3, 14.006199))
sketch13.addConstraint(Sketcher.Constraint("DistanceX", 4, 2, 5, 2, 3.150498))
sketch13.addConstraint(Sketcher.Constraint("DistanceX", 2, 2, 5, 2, 5.681101))
sketch13.addConstraint(Sketcher.Constraint("DistanceY", 1, 3, -1, 1, 153.571239))
sketch13.addConstraint(Sketcher.Constraint("DistanceX", 3, 3, -1, 1, 65.980659))
pocket9 = doc.addObject("PartDesign::Pocket", "Pocket008")
body.addObject(pocket9)
pocket9.Profile = sketch13
pocket9.Type = "UpToFirst"

sketch14 = doc.addObject("Sketcher::SketchObject", "Sketch013")
body.addObject(sketch14)
sketch14.AttachmentSupport = (doc.XY_Plane, [""])
sketch14.MapMode = "FlatFace"
sketch14.AttachmentOffset = App.Placement(Vector(0, 0, 3), App.Rotation())
sketch14.addGeometry(Part.LineSegment(Vector(6.5, -47.2, 0), Vector(-6.5, -47.2, 0)), False)
sketch14.addGeometry(Part.ArcOfCircle(Part.Circle(Vector(-6.5, -50.2, 0), Vector(0, 0, 1), 3), math.radians(90), math.radians(143)), False)
sketch14.addGeometry(Part.LineSegment(Vector(-8.9, -48.4, 0), Vector(-15.2, -56.9, 0)), False)
sketch14.addGeometry(Part.ArcOfCircle(Part.Circle(Vector(-12.8, -58.7, 0), Vector(0, 0, 1), 3), math.radians(143), math.radians(270)), False)
sketch14.addGeometry(Part.LineSegment(Vector(-12.8, -61.7, 0), Vector(12.8, -61.7, 0)), False)
sketch14.addGeometry(Part.ArcOfCircle(Part.Circle(Vector(12.8, -58.7, 0), Vector(0, 0, 1), 3), math.radians(-90), math.radians(37)), False)
sketch14.addGeometry(Part.LineSegment(Vector(15.2, -56.9, 0), Vector(8.9, -48.4, 0)), False)
sketch14.addGeometry(Part.ArcOfCircle(Part.Circle(Vector(6.5, -50.2, 0), Vector(0, 0, 1), 3), math.radians(37), math.radians(90)), False)
sketch14.addConstraint(Sketcher.Constraint("Tangent", 0, 2, 1, 1))
sketch14.addConstraint(Sketcher.Constraint("Tangent", 1, 2, 2, 1))
sketch14.addConstraint(Sketcher.Constraint("Tangent", 2, 2, 3, 1))
sketch14.addConstraint(Sketcher.Constraint("Tangent", 3, 2, 4, 1))
sketch14.addConstraint(Sketcher.Constraint("Tangent", 4, 2, 5, 1))
sketch14.addConstraint(Sketcher.Constraint("Tangent", 5, 2, 6, 1))
sketch14.addConstraint(Sketcher.Constraint("Tangent", 6, 2, 7, 1))
sketch14.addConstraint(Sketcher.Constraint("Tangent", 7, 2, 0, 1))
sketch14.addConstraint(Sketcher.Constraint("Horizontal", 0))
sketch14.addConstraint(Sketcher.Constraint("Horizontal", 4))
sketch14.addConstraint(Sketcher.Constraint("Equal", 1, 3))
sketch14.addConstraint(Sketcher.Constraint("Equal", 3, 5))
sketch14.addConstraint(Sketcher.Constraint("Equal", 5, 7))
sketch14.addConstraint(Sketcher.Constraint("Symmetric", 2, 2, 5, 2, -2))
sketch14.addConstraint(Sketcher.Constraint("Radius", 1, 3.0))
sketch14.addConstraint(Sketcher.Constraint("Angle", 2, Q("-126.5 deg")))
sketch14.addConstraint(Sketcher.Constraint("DistanceX", 0, 2, 0, 1, 12.975751))
sketch14.addConstraint(Sketcher.Constraint("DistanceX", 4, 1, 4, 2, 25.509838))
sketch14.addConstraint(Sketcher.Constraint("DistanceY", 1, 3, -1, 1, 50.210702))
pocket10 = doc.addObject("PartDesign::Pocket", "Pocket009")
body.addObject(pocket10)
pocket10.Profile = sketch14
pocket10.Type = "UpToFirst"

sketch15 = doc.addObject("Sketcher::SketchObject", "Sketch014")
body.addObject(sketch15)
sketch15.AttachmentSupport = (doc.XY_Plane, [""])
sketch15.MapMode = "FlatFace"
sketch15.AttachmentOffset = App.Placement(Vector(0, 0, 3), App.Rotation())
sketch15.addGeometry(Part.LineSegment(Vector(42, -68.96, 0), Vector(42, -75.96, 0)), False)
sketch15.addGeometry(Part.ArcOfCircle(Part.Circle(Vector(42.5, -75.96, 0), Vector(0, 0, 1), 0.5), math.radians(180), math.radians(323)), False)
sketch15.addGeometry(Part.LineSegment(Vector(42.9, -76.26, 0), Vector(43.4, -75.59, 0)), False)
sketch15.addGeometry(Part.ArcOfCircle(Part.Circle(Vector(43, -75.29, 0), Vector(0, 0, 1), 0.5), math.radians(-37), math.radians(0)), False)
sketch15.addGeometry(Part.LineSegment(Vector(43.5, -75.29, 0), Vector(43.5, -69.62, 0)), False)
sketch15.addGeometry(Part.ArcOfCircle(Part.Circle(Vector(43, -69.62, 0), Vector(0, 0, 1), 0.5), math.radians(0), math.radians(37)), False)
sketch15.addGeometry(Part.LineSegment(Vector(43.4, -69.32, 0), Vector(42.9, -68.66, 0)), False)
sketch15.addGeometry(Part.ArcOfCircle(Part.Circle(Vector(42.5, -68.96, 0), Vector(0, 0, 1), 0.5), math.radians(37), math.radians(180)), False)
sketch15.addConstraint(Sketcher.Constraint("Tangent", 0, 2, 1, 1))
sketch15.addConstraint(Sketcher.Constraint("Tangent", 1, 2, 2, 1))
sketch15.addConstraint(Sketcher.Constraint("Tangent", 2, 2, 3, 1))
sketch15.addConstraint(Sketcher.Constraint("Tangent", 3, 2, 4, 1))
sketch15.addConstraint(Sketcher.Constraint("Tangent", 4, 2, 5, 1))
sketch15.addConstraint(Sketcher.Constraint("Tangent", 5, 2, 6, 1))
sketch15.addConstraint(Sketcher.Constraint("Tangent", 6, 2, 7, 1))
sketch15.addConstraint(Sketcher.Constraint("Tangent", 7, 2, 0, 1))
sketch15.addConstraint(Sketcher.Constraint("Vertical", 0))
sketch15.addConstraint(Sketcher.Constraint("Vertical", 4))
sketch15.addConstraint(Sketcher.Constraint("Equal", 1, 3))
sketch15.addConstraint(Sketcher.Constraint("Equal", 3, 5))
sketch15.addConstraint(Sketcher.Constraint("Equal", 5, 7))
sketch15.addConstraint(Sketcher.Constraint("Vertical", 2, 2, 5, 2))
sketch15.addConstraint(Sketcher.Constraint("Radius", 1, 0.5))
sketch15.addConstraint(Sketcher.Constraint("DistanceY", 0, 2, 0, 1, 7.0))
sketch15.addConstraint(Sketcher.Constraint("DistanceX", -1, 1, 3, 3, 43.0))
sketch15.addConstraint(Sketcher.Constraint("DistanceX", -1, 1, 0, 2, 42.0))
sketch15.addConstraint(Sketcher.Constraint("DistanceX", -1, 1, 1, 2, 42.9))
sketch15.addConstraint(Sketcher.Constraint("DistanceY", 3, 3, -1, 1, 75.28926))
pocket11 = doc.addObject("PartDesign::Pocket", "Pocket010")
body.addObject(pocket11)
pocket11.Profile = sketch15
pocket11.Type = "UpToFirst"

sketch16 = doc.addObject("Sketcher::SketchObject", "Sketch015")
body.addObject(sketch16)
sketch16.AttachmentSupport = (doc.XY_Plane, [""])
sketch16.MapMode = "FlatFace"
sketch16.AttachmentOffset = App.Placement(Vector(0, 0, 3), App.Rotation())
sketch16.addGeometry(Part.LineSegment(Vector(22, -75.96, 0), Vector(22, -68.96, 0)), False)
sketch16.addGeometry(Part.ArcOfCircle(Part.Circle(Vector(21.5, -68.96, 0), Vector(0, 0, 1), 0.5), math.radians(0), math.radians(143)), False)
sketch16.addGeometry(Part.LineSegment(Vector(21.1, -68.66, 0), Vector(20.6, -69.32, 0)), False)
sketch16.addGeometry(Part.ArcOfCircle(Part.Circle(Vector(21, -69.62, 0), Vector(0, 0, 1), 0.5), math.radians(143), math.radians(180)), False)
sketch16.addGeometry(Part.LineSegment(Vector(20.5, -69.62, 0), Vector(20.5, -75.29, 0)), False)
sketch16.addGeometry(Part.ArcOfCircle(Part.Circle(Vector(21, -75.29, 0), Vector(0, 0, 1), 0.5), math.radians(180), math.radians(217)), False)
sketch16.addGeometry(Part.LineSegment(Vector(20.6, -75.59, 0), Vector(21.1, -76.26, 0)), False)
sketch16.addGeometry(Part.ArcOfCircle(Part.Circle(Vector(21.5, -75.96, 0), Vector(0, 0, 1), 0.5), math.radians(-143), math.radians(0)), False)
sketch16.addConstraint(Sketcher.Constraint("Tangent", 0, 2, 1, 1))
sketch16.addConstraint(Sketcher.Constraint("Tangent", 1, 2, 2, 1))
sketch16.addConstraint(Sketcher.Constraint("Tangent", 2, 2, 3, 1))
sketch16.addConstraint(Sketcher.Constraint("Tangent", 3, 2, 4, 1))
sketch16.addConstraint(Sketcher.Constraint("Tangent", 4, 2, 5, 1))
sketch16.addConstraint(Sketcher.Constraint("Tangent", 5, 2, 6, 1))
sketch16.addConstraint(Sketcher.Constraint("Tangent", 6, 2, 7, 1))
sketch16.addConstraint(Sketcher.Constraint("Tangent", 7, 2, 0, 1))
sketch16.addConstraint(Sketcher.Constraint("Vertical", 0))
sketch16.addConstraint(Sketcher.Constraint("Vertical", 4))
sketch16.addConstraint(Sketcher.Constraint("Equal", 1, 3))
sketch16.addConstraint(Sketcher.Constraint("Equal", 3, 5))
sketch16.addConstraint(Sketcher.Constraint("Equal", 5, 7))
sketch16.addConstraint(Sketcher.Constraint("Vertical", 2, 2, 5, 2))
sketch16.addConstraint(Sketcher.Constraint("Radius", 1, 0.5))
sketch16.addConstraint(Sketcher.Constraint("DistanceY", 0, 1, 0, 2, 7.0))
sketch16.addConstraint(Sketcher.Constraint("DistanceX", -1, 1, 3, 3, 21.0))
sketch16.addConstraint(Sketcher.Constraint("DistanceX", -1, 1, 0, 2, 22.0))
sketch16.addConstraint(Sketcher.Constraint("DistanceX", -1, 1, 1, 2, 21.1))
sketch16.addConstraint(Sketcher.Constraint("DistanceY", 5, 3, -1, 1, 75.28926))
pocket12 = doc.addObject("PartDesign::Pocket", "Pocket011")
body.addObject(pocket12)
pocket12.Profile = sketch16
pocket12.Type = "UpToFirst"

sketch17 = doc.addObject("Sketcher::SketchObject", "Sketch016")
body.addObject(sketch17)
sketch17.AttachmentSupport = (doc.XY_Plane, [""])
sketch17.MapMode = "FlatFace"
sketch17.AttachmentOffset = App.Placement(Vector(0, 0, 3), App.Rotation())
sketch17.addGeometry(Part.LineSegment(Vector(-43.4, -75.59, 0), Vector(-42.9, -76.26, 0)), False)
sketch17.addGeometry(Part.ArcOfCircle(Part.Circle(Vector(-42.5, -75.96, 0), Vector(0, 0, 1), 0.5), math.radians(-143), math.radians(0)), False)
sketch17.addGeometry(Part.LineSegment(Vector(-42, -75.96, 0), Vector(-42, -68.96, 0)), False)
sketch17.addGeometry(Part.ArcOfCircle(Part.Circle(Vector(-42.5, -68.96, 0), Vector(0, 0, 1), 0.5), math.radians(0), math.radians(143)), False)
sketch17.addGeometry(Part.LineSegment(Vector(-42.9, -68.66, 0), Vector(-43.4, -69.32, 0)), False)
sketch17.addGeometry(Part.ArcOfCircle(Part.Circle(Vector(-43, -69.62, 0), Vector(0, 0, 1), 0.5), math.radians(143), math.radians(180)), False)
sketch17.addGeometry(Part.LineSegment(Vector(-43.5, -69.62, 0), Vector(-43.5, -75.29, 0)), False)
sketch17.addGeometry(Part.ArcOfCircle(Part.Circle(Vector(-43, -75.29, 0), Vector(0, 0, 1), 0.5), math.radians(180), math.radians(217)), False)
sketch17.addConstraint(Sketcher.Constraint("Tangent", 0, 2, 1, 1))
sketch17.addConstraint(Sketcher.Constraint("Tangent", 1, 2, 2, 1))
sketch17.addConstraint(Sketcher.Constraint("Tangent", 2, 2, 3, 1))
sketch17.addConstraint(Sketcher.Constraint("Tangent", 3, 2, 4, 1))
sketch17.addConstraint(Sketcher.Constraint("Tangent", 4, 2, 5, 1))
sketch17.addConstraint(Sketcher.Constraint("Tangent", 5, 2, 6, 1))
sketch17.addConstraint(Sketcher.Constraint("Tangent", 6, 2, 7, 1))
sketch17.addConstraint(Sketcher.Constraint("Tangent", 7, 2, 0, 1))
sketch17.addConstraint(Sketcher.Constraint("Vertical", 2))
sketch17.addConstraint(Sketcher.Constraint("Vertical", 6))
sketch17.addConstraint(Sketcher.Constraint("Equal", 1, 3))
sketch17.addConstraint(Sketcher.Constraint("Equal", 3, 5))
sketch17.addConstraint(Sketcher.Constraint("Equal", 5, 7))
sketch17.addConstraint(Sketcher.Constraint("Vertical", 0, 2, 3, 2))
sketch17.addConstraint(Sketcher.Constraint("Radius", 1, 0.5))
sketch17.addConstraint(Sketcher.Constraint("DistanceY", 2, 1, 2, 2, 7.0))
sketch17.addConstraint(Sketcher.Constraint("DistanceX", 5, 3, -1, 1, 43.0))
sketch17.addConstraint(Sketcher.Constraint("DistanceX", 1, 2, -1, 1, 42.0))
sketch17.addConstraint(Sketcher.Constraint("DistanceX", 0, 2, -1, 1, 42.9))
sketch17.addConstraint(Sketcher.Constraint("DistanceY", 7, 3, -1, 1, 75.28926))
pocket13 = doc.addObject("PartDesign::Pocket", "Pocket012")
body.addObject(pocket13)
pocket13.Profile = sketch17
pocket13.Type = "UpToFirst"

sketch18 = doc.addObject("Sketcher::SketchObject", "Sketch017")
body.addObject(sketch18)
sketch18.AttachmentSupport = (doc.XY_Plane, [""])
sketch18.MapMode = "FlatFace"
sketch18.AttachmentOffset = App.Placement(Vector(0, 0, 3), App.Rotation())
sketch18.addGeometry(Part.LineSegment(Vector(-21.1, -76.26, 0), Vector(-20.6, -75.59, 0)), False)
sketch18.addGeometry(Part.ArcOfCircle(Part.Circle(Vector(-21, -75.29, 0), Vector(0, 0, 1), 0.5), math.radians(-37), math.radians(0)), False)
sketch18.addGeometry(Part.LineSegment(Vector(-20.5, -75.29, 0), Vector(-20.5, -69.62, 0)), False)
sketch18.addGeometry(Part.ArcOfCircle(Part.Circle(Vector(-21, -69.62, 0), Vector(0, 0, 1), 0.5), math.radians(0), math.radians(37)), False)
sketch18.addGeometry(Part.LineSegment(Vector(-20.6, -69.32, 0), Vector(-21.1, -68.66, 0)), False)
sketch18.addGeometry(Part.ArcOfCircle(Part.Circle(Vector(-21.5, -68.96, 0), Vector(0, 0, 1), 0.5), math.radians(37), math.radians(180)), False)
sketch18.addGeometry(Part.LineSegment(Vector(-22, -68.96, 0), Vector(-22, -75.96, 0)), False)
sketch18.addGeometry(Part.ArcOfCircle(Part.Circle(Vector(-21.5, -75.96, 0), Vector(0, 0, 1), 0.5), math.radians(180), math.radians(323)), False)
sketch18.addConstraint(Sketcher.Constraint("Tangent", 0, 2, 1, 1))
sketch18.addConstraint(Sketcher.Constraint("Tangent", 1, 2, 2, 1))
sketch18.addConstraint(Sketcher.Constraint("Tangent", 2, 2, 3, 1))
sketch18.addConstraint(Sketcher.Constraint("Tangent", 3, 2, 4, 1))
sketch18.addConstraint(Sketcher.Constraint("Tangent", 4, 2, 5, 1))
sketch18.addConstraint(Sketcher.Constraint("Tangent", 5, 2, 6, 1))
sketch18.addConstraint(Sketcher.Constraint("Tangent", 6, 2, 7, 1))
sketch18.addConstraint(Sketcher.Constraint("Tangent", 7, 2, 0, 1))
sketch18.addConstraint(Sketcher.Constraint("Vertical", 2))
sketch18.addConstraint(Sketcher.Constraint("Vertical", 6))
sketch18.addConstraint(Sketcher.Constraint("Equal", 1, 3))
sketch18.addConstraint(Sketcher.Constraint("Equal", 3, 5))
sketch18.addConstraint(Sketcher.Constraint("Equal", 5, 7))
sketch18.addConstraint(Sketcher.Constraint("Vertical", 0, 2, 3, 2))
sketch18.addConstraint(Sketcher.Constraint("Radius", 1, 0.5))
sketch18.addConstraint(Sketcher.Constraint("DistanceY", 6, 2, 6, 1, 7.0))
sketch18.addConstraint(Sketcher.Constraint("DistanceX", 1, 3, -1, 1, 21.0))
sketch18.addConstraint(Sketcher.Constraint("DistanceX", 5, 2, -1, 1, 22.0))
sketch18.addConstraint(Sketcher.Constraint("DistanceX", 0, 2, -1, 1, 20.6))
sketch18.addConstraint(Sketcher.Constraint("DistanceY", 1, 3, -1, 1, 75.28926))
pocket14 = doc.addObject("PartDesign::Pocket", "Pocket013")
body.addObject(pocket14)
pocket14.Profile = sketch18
pocket14.Type = "UpToFirst"

doc.recompute()
